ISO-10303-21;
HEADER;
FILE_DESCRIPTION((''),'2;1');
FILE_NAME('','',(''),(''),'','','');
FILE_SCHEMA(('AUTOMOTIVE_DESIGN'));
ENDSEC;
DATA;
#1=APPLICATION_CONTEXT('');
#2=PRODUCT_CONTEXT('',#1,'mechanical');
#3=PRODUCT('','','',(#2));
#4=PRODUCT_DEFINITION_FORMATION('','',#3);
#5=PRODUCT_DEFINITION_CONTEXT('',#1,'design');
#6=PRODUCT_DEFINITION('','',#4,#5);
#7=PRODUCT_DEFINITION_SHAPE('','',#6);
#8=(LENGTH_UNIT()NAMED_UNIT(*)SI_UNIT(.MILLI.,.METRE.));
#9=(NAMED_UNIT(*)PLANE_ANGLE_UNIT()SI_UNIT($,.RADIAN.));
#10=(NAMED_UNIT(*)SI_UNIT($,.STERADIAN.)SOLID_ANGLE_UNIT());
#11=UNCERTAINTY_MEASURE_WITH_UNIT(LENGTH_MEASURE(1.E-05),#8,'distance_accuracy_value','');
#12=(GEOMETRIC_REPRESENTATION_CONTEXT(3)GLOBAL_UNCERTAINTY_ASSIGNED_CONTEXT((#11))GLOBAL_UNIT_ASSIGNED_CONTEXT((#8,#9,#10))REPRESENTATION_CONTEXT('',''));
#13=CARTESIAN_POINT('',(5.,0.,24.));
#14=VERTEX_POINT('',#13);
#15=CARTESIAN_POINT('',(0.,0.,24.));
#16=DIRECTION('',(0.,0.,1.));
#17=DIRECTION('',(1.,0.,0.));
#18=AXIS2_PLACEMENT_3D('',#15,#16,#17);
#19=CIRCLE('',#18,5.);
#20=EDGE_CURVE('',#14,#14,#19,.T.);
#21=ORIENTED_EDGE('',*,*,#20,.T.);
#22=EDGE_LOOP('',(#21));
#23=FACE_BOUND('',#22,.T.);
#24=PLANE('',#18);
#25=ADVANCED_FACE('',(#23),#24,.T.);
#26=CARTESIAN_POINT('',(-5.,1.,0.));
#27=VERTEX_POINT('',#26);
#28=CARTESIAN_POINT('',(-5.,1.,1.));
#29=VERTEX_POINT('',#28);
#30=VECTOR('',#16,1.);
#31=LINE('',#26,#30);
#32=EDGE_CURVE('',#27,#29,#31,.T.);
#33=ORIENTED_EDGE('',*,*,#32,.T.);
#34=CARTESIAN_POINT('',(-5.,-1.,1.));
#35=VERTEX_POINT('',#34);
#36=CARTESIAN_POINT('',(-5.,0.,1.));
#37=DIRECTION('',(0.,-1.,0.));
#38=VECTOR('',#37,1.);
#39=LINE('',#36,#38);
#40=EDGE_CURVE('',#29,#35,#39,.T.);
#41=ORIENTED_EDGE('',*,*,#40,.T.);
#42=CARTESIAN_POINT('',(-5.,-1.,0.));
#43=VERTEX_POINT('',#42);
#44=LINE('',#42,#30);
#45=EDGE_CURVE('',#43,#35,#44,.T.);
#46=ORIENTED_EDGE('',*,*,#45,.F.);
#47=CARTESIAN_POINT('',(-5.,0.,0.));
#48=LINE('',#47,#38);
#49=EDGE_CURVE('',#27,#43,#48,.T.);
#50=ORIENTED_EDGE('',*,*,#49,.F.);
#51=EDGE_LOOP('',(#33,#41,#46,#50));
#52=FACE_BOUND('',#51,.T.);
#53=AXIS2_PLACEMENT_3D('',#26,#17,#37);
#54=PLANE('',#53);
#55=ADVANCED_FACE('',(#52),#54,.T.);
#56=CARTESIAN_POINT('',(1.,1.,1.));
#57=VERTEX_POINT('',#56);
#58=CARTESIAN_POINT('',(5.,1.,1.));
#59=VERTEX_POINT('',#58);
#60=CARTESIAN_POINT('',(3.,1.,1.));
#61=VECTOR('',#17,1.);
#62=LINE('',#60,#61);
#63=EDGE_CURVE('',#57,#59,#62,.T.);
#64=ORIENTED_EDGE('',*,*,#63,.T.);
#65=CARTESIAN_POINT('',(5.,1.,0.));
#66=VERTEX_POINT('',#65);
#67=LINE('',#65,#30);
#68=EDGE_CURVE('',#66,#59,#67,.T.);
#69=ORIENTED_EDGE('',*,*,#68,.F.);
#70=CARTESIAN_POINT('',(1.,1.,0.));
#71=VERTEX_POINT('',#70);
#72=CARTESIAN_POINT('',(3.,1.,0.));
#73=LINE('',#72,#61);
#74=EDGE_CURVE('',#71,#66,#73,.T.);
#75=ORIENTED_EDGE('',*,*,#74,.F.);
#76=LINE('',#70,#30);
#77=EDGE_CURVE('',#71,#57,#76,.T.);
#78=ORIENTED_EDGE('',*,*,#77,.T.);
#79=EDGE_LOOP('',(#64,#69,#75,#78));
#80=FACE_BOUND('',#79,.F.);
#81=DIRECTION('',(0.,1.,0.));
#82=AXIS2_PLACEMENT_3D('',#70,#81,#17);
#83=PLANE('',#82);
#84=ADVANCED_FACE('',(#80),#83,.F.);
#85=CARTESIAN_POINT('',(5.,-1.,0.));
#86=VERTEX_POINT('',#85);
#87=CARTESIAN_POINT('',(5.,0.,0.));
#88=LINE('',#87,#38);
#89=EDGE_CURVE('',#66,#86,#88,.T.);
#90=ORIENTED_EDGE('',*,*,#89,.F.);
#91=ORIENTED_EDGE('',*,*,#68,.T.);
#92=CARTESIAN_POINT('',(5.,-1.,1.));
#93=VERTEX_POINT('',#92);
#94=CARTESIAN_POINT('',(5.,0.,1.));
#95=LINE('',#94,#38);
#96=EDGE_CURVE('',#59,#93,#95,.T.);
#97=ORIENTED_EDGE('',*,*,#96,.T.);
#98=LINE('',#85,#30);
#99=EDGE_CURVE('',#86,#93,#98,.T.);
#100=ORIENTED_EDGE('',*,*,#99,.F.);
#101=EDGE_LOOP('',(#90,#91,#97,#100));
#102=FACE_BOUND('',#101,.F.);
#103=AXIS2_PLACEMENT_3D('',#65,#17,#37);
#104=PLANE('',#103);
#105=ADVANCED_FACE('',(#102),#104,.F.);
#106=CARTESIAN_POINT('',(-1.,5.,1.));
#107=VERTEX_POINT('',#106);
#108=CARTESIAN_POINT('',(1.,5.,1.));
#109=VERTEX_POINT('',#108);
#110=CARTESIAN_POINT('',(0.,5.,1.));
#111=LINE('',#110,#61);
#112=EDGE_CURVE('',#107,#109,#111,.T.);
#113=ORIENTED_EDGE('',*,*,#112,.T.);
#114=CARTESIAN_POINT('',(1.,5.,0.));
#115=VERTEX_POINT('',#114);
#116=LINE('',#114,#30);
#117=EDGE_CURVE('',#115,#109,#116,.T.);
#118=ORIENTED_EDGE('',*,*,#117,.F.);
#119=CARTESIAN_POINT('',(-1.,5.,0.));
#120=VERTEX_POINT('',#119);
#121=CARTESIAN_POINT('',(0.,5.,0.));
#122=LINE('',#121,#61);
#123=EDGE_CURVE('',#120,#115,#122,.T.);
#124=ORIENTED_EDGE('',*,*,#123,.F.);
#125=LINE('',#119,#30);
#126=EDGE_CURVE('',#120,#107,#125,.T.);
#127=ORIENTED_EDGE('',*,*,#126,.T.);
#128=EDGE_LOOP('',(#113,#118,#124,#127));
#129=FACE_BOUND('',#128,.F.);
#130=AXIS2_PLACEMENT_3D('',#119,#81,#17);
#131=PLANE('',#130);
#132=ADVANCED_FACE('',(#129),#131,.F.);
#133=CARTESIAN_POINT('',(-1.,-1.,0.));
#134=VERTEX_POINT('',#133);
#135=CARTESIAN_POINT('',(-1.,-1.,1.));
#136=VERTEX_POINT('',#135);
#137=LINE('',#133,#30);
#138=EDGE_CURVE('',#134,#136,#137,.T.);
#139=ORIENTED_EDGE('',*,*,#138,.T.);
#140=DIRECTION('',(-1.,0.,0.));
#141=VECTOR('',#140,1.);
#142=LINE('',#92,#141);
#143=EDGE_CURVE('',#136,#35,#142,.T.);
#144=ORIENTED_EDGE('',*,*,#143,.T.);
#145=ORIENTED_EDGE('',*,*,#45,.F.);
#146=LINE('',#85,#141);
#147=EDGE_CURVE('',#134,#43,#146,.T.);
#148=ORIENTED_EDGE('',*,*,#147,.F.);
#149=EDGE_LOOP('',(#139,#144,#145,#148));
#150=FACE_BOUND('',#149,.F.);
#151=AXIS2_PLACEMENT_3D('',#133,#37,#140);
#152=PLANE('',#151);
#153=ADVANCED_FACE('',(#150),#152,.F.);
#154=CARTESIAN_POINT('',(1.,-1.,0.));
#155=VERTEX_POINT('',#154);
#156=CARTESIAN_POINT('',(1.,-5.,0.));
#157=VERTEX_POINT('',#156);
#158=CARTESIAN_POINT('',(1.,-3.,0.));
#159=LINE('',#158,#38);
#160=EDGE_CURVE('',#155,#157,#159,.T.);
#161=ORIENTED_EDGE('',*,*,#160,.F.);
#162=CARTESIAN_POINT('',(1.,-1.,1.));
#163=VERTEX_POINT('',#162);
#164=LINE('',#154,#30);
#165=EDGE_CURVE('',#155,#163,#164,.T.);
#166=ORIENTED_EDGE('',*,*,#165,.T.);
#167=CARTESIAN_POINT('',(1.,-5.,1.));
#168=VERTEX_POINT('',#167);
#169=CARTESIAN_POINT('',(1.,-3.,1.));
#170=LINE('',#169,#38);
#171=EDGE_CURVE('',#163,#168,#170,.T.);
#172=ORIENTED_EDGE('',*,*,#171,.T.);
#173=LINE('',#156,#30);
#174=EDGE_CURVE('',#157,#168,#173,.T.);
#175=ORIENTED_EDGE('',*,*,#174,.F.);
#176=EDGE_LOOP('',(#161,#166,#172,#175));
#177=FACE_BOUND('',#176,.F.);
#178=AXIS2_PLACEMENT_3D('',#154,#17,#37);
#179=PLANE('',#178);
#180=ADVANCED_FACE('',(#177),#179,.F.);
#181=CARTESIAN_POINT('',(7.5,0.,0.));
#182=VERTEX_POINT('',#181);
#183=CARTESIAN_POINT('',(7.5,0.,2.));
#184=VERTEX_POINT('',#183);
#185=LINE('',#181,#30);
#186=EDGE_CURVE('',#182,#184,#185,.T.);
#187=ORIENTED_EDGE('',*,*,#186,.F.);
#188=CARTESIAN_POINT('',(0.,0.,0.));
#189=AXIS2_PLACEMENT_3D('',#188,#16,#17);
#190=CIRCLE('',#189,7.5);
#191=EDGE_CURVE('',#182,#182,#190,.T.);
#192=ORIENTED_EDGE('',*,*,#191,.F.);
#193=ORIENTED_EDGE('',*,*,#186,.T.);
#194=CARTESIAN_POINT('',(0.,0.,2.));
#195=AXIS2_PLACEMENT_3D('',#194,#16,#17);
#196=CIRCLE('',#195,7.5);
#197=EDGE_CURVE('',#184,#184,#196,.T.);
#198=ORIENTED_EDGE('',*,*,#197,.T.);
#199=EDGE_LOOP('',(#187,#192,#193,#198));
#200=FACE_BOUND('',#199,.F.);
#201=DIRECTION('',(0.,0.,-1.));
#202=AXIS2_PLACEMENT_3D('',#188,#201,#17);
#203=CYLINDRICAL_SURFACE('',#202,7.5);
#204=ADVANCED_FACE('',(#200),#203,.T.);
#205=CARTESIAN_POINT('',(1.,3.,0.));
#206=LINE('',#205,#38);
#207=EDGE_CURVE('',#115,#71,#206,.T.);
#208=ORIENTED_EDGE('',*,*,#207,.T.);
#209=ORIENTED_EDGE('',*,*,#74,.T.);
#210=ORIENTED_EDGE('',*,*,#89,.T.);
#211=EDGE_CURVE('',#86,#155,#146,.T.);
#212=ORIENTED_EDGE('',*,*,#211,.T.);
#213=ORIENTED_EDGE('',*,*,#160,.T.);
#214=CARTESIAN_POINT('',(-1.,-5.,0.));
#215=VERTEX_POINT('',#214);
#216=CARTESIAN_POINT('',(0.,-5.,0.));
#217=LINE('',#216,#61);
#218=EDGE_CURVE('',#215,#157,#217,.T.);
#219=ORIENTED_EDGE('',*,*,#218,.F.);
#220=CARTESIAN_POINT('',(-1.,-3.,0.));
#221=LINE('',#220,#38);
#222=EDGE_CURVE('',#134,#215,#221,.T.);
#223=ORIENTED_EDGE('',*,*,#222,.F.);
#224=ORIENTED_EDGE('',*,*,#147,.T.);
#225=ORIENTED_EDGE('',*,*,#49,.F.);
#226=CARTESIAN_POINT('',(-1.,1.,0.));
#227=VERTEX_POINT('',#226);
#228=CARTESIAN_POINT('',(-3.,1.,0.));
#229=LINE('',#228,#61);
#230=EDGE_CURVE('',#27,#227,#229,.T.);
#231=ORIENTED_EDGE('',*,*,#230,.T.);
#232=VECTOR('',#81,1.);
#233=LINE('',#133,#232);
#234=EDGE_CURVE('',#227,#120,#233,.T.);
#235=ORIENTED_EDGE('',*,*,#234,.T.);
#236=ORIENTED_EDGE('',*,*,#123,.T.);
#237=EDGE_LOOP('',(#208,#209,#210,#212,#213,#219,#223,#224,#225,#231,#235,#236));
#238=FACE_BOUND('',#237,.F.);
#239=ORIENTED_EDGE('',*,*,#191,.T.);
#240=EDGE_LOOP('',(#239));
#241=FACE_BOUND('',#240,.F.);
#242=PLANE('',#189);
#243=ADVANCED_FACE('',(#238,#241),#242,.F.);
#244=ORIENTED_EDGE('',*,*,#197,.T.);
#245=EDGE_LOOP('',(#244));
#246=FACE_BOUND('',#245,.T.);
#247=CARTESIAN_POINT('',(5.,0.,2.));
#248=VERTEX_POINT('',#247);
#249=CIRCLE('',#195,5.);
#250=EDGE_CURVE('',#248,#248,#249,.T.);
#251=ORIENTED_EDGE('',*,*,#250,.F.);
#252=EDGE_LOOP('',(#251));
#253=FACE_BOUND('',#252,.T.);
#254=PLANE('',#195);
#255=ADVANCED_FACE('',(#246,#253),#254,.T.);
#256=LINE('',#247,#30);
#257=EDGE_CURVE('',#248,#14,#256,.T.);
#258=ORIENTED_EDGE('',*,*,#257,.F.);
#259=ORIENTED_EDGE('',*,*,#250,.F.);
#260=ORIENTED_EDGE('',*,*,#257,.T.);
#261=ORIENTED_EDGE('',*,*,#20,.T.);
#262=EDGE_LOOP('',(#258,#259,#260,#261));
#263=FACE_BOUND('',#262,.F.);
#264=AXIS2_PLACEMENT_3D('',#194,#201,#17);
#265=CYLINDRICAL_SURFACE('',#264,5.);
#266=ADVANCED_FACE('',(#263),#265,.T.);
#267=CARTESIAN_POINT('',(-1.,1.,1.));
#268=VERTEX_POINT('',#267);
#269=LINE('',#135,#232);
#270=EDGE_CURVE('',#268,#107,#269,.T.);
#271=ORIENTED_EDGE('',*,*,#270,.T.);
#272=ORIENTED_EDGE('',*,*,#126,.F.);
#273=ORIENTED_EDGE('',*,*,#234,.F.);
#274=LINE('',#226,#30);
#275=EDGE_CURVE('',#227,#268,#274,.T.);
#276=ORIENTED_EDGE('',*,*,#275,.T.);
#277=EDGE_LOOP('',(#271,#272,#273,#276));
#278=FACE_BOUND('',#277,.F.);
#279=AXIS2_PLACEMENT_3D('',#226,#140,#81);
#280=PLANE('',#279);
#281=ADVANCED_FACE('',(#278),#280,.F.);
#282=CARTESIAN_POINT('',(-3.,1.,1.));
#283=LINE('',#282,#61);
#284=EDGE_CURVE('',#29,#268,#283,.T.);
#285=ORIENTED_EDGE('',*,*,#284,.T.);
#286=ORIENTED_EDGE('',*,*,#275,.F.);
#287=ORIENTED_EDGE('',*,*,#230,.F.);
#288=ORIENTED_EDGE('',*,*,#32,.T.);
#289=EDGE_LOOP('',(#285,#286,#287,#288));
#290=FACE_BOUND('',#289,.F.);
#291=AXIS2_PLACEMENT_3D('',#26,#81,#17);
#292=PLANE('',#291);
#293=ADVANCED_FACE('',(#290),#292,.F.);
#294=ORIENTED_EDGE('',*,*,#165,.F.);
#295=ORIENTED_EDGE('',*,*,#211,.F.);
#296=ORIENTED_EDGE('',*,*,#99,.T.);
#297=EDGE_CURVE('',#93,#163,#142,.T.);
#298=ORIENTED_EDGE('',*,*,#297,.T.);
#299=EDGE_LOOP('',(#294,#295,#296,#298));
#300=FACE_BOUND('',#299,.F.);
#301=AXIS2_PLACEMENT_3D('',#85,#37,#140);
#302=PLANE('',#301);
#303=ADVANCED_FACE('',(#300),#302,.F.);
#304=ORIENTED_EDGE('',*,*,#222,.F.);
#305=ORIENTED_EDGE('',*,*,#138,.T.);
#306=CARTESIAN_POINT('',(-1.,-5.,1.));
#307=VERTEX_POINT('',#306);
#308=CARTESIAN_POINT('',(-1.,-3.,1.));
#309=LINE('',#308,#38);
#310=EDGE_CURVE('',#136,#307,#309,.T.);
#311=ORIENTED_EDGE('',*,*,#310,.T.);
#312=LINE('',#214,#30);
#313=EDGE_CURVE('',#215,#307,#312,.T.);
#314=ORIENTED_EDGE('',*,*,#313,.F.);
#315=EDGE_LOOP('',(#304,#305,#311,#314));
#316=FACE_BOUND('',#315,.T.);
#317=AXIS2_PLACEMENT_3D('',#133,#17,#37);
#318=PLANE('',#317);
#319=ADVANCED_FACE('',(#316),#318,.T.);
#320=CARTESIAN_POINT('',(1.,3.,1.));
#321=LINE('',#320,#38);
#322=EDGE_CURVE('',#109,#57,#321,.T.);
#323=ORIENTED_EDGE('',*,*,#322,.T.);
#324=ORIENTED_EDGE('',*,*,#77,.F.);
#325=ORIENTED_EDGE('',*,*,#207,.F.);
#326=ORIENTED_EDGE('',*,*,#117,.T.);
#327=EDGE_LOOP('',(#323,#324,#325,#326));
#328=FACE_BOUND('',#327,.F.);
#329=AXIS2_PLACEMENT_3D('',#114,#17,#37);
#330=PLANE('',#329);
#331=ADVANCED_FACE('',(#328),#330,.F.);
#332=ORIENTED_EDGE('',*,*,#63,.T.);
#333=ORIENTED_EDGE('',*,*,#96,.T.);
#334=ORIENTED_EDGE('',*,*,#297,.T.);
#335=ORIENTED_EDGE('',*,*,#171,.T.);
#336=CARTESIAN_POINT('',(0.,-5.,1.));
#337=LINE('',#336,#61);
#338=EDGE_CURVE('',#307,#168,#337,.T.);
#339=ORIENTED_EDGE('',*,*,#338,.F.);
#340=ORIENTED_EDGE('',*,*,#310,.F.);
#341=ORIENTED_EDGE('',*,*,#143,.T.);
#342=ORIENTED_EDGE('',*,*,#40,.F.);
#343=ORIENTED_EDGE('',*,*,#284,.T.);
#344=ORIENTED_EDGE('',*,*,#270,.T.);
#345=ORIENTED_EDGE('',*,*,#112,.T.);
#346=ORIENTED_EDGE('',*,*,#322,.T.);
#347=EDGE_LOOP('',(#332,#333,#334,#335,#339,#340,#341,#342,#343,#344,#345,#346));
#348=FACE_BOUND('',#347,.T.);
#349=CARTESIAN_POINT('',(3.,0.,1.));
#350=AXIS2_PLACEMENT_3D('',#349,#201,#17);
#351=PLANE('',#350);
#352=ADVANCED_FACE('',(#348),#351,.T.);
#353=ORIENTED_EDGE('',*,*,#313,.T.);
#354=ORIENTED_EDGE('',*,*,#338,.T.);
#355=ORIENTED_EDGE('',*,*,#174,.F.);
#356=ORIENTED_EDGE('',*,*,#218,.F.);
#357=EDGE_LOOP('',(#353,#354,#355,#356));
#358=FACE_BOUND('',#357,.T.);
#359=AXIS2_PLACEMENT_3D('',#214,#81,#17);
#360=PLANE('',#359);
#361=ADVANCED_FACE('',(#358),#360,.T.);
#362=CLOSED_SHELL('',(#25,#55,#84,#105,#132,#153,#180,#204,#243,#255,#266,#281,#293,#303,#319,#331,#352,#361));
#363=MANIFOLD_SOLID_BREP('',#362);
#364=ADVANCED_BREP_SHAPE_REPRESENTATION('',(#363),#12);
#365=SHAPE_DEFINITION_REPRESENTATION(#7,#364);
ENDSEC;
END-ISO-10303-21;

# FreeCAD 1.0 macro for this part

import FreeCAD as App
import Part
import Sketcher

doc = App.newDocument("Part")
body = doc.addObject("PartDesign::Body", "Body")

# Sketch on XY plane
sketch1 = body.newObject("Sketcher::SketchObject", "Sketch")
sketch1.AttachmentSupport = (doc.getObject("XY_Plane"), [""])
sketch1.MapMode = "FlatFace"
sketch1.addGeometry(Part.Circle(App.Vector(0, 0, 0), App.Vector(0, 0, 1), 7.5), False)
sketch1.addConstraint(Sketcher.Constraint("Coincident", 0, 3, -1, 1))
sketch1.addConstraint(Sketcher.Constraint("Diameter", 0, 15.0))
pad1 = body.newObject("PartDesign::Pad", "Pad")
pad1.Profile = sketch1
pad1.Length = 2

# Sketch on XY plane
sketch2 = body.newObject("Sketcher::SketchObject", "Sketch001")
sketch2.AttachmentSupport = (doc.getObject("XY_Plane"), [""])
sketch2.MapMode = "FlatFace"
sketch2.AttachmentOffset = App.Placement(App.Vector(0, 0, 2), App.Rotation())
sketch2.addGeometry(Part.Circle(App.Vector(0, 0, 0), App.Vector(0, 0, 1), 5), False)
sketch2.addConstraint(Sketcher.Constraint("Coincident", 0, 3, -1, 1))
sketch2.addConstraint(Sketcher.Constraint("Diameter", 0, 10.0))
pad2 = body.newObject("PartDesign::Pad", "Pad001")
pad2.Profile = sketch2
pad2.Length = 22

# Sketch on XY plane
sketch3 = body.newObject("Sketcher::SketchObject", "Sketch002")
sketch3.AttachmentSupport = (doc.getObject("XY_Plane"), [""])
sketch3.MapMode = "FlatFace"
sketch3.addGeometry(Part.LineSegment(App.Vector(1, 1, 0), App.Vector(5, 1, 0)), False)
sketch3.addGeometry(Part.LineSegment(App.Vector(5, 1, 0), App.Vector(5, -1, 0)), False)
sketch3.addGeometry(Part.LineSegment(App.Vector(5, -1, 0), App.Vector(1, -1, 0)), False)
sketch3.addGeometry(Part.LineSegment(App.Vector(1, -1, 0), App.Vector(1, -5, 0)), False)
sketch3.addGeometry(Part.LineSegment(App.Vector(1, -5, 0), App.Vector(-1, -5, 0)), False)
sketch3.addGeometry(Part.LineSegment(App.Vector(-1, -5, 0), App.Vector(-1, -1, 0)), False)
sketch3.addGeometry(Part.LineSegment(App.Vector(-1, -1, 0), App.Vector(-5, -1, 0)), False)
sketch3.addGeometry(Part.LineSegment(App.Vector(-5, -1, 0), App.Vector(-5, 1, 0)), False)
sketch3.addGeometry(Part.LineSegment(App.Vector(-5, 1, 0), App.Vector(-1, 1, 0)), False)
sketch3.addGeometry(Part.LineSegment(App.Vector(-1, 1, 0), App.Vector(-1, 5, 0)), False)
sketch3.addGeometry(Part.LineSegment(App.Vector(-1, 5, 0), App.Vector(1, 5, 0)), False)
sketch3.addGeometry(Part.LineSegment(App.Vector(1, 5, 0), App.Vector(1, 1, 0)), False)
sketch3.addConstraint(Sketcher.Constraint("Coincident", 0, 2, 1, 1))
sketch3.addConstraint(Sketcher.Constraint("Coincident", 1, 2, 2, 1))
sketch3.addConstraint(Sketcher.Constraint("Coincident", 2, 2, 3, 1))
sketch3.addConstraint(Sketcher.Constraint("Coincident", 3, 2, 4, 1))
sketch3.addConstraint(Sketcher.Constraint("Coincident", 4, 2, 5, 1))
sketch3.addConstraint(Sketcher.Constraint("Coincident", 5, 2, 6, 1))
sketch3.addConstraint(Sketcher.Constraint("Coincident", 6, 2, 7, 1))
sketch3.addConstraint(Sketcher.Constraint("Coincident", 7, 2, 8, 1))
sketch3.addConstraint(Sketcher.Constraint("Coincident", 8, 2, 9, 1))
sketch3.addConstraint(Sketcher.Constraint("Coincident", 9, 2, 10, 1))
sketch3.addConstraint(Sketcher.Constraint("Coincident", 10, 2, 11, 1))
sketch3.addConstraint(Sketcher.Constraint("Coincident", 11, 2, 0, 1))
sketch3.addConstraint(Sketcher.Constraint("Horizontal", 0))
sketch3.addConstraint(Sketcher.Constraint("Vertical", 1))
sketch3.addConstraint(Sketcher.Constraint("Horizontal", 2))
sketch3.addConstraint(Sketcher.Constraint("Vertical", 3))
sketch3.addConstraint(Sketcher.Constraint("Horizontal", 4))
sketch3.addConstraint(Sketcher.Constraint("Vertical", 5))
sketch3.addConstraint(Sketcher.Constraint("Horizontal", 6))
sketch3.addConstraint(Sketcher.Constraint("Vertical", 7))
sketch3.addConstraint(Sketcher.Constraint("Horizontal", 8))
sketch3.addConstraint(Sketcher.Constraint("Vertical", 9))
sketch3.addConstraint(Sketcher.Constraint("Horizontal", 10))
sketch3.addConstraint(Sketcher.Constraint("Vertical", 11))
sketch3.addConstraint(Sketcher.Constraint("Symmetric", 0, 2, 6, 2, -1, 1))
sketch3.addConstraint(Sketcher.Constraint("Symmetric", 2, 2, 8, 2, -1, 1))
sketch3.addConstraint(Sketcher.Constraint("Symmetric", 4, 2, 10, 2, -1, 1))
sketch3.addConstraint(Sketcher.Constraint("Symmetric", 2, 2, 5, 2, -2))
sketch3.addConstraint(Sketcher.Constraint("Equal", 10, 1))
sketch3.addConstraint(Sketcher.Constraint("Equal", 8, 3))
sketch3.addConstraint(Sketcher.Constraint("DistanceX", 0, 1, 0, 2, 4.0))
sketch3.addConstraint(Sketcher.Constraint("DistanceX", 4, 2, 4, 1, 2.0))
pocket1 = body.newObject("PartDesign::Pocket", "Pocket")
pocket1.Profile = sketch3
pocket1.Length = 1
pocket1.Reversed = True

doc.recompute()
